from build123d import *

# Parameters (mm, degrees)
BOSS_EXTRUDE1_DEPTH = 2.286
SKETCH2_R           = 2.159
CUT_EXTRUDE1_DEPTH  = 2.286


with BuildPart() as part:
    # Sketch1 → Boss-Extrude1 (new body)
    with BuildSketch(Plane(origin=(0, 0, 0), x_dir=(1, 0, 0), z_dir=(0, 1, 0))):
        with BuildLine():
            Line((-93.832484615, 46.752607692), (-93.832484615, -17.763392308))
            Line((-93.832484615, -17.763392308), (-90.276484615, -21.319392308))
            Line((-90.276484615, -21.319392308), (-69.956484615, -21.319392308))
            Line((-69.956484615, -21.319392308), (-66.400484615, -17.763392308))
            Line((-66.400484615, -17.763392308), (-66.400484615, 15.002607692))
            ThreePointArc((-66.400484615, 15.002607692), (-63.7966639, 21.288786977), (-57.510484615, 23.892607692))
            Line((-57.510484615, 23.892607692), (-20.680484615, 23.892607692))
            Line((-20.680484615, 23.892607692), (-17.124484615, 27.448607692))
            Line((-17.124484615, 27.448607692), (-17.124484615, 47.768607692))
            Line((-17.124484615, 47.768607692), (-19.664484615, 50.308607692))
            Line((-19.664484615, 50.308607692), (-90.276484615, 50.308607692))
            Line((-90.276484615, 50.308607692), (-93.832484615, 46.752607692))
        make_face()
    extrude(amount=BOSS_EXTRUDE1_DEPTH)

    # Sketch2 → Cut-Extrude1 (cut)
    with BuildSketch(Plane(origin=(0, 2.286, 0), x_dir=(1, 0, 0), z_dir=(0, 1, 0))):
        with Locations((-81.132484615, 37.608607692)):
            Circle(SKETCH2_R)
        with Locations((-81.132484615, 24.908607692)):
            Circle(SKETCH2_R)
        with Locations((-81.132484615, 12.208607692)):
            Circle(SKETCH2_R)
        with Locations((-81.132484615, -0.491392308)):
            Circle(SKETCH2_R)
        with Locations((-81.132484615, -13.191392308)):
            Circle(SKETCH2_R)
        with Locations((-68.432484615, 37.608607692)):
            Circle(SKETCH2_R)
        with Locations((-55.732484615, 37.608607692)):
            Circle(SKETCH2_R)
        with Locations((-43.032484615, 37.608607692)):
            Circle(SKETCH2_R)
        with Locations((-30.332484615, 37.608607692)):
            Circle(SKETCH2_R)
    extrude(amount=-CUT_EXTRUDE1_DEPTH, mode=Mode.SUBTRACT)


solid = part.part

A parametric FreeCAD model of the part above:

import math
import FreeCAD as App
import Part
import Sketcher

V = App.Vector
Q = App.Units.Quantity

doc = App.newDocument("Part")
body = doc.addObject("PartDesign::Body", "Body")

sketch1 = body.newObject("Sketcher::SketchObject", "Sketch")
sketch1.AttachmentSupport = (doc.getObject("XZ_Plane"), [""])
sketch1.MapMode = "FlatFace"
sketch1.addGeometry(Part.LineSegment(V(-93.8, -46.8, 0), V(-93.8, 17.8, 0)), False)
sketch1.addGeometry(Part.LineSegment(V(-93.8, 17.8, 0), V(-90.3, 21.3, 0)), False)
sketch1.addGeometry(Part.LineSegment(V(-90.3, 21.3, 0), V(-70, 21.3, 0)), False)
sketch1.addGeometry(Part.LineSegment(V(-70, 21.3, 0), V(-66.4, 17.8, 0)), False)
sketch1.addGeometry(Part.LineSegment(V(-66.4, 17.8, 0), V(-66.4, -15, 0)), False)
sketch1.addGeometry(Part.ArcOfCircle(Part.Circle(V(-57.5, -15, 0), V(0, 0, 1), 8.9), math.radians(180), math.radians(270)), False)
sketch1.addGeometry(Part.LineSegment(V(-57.5, -23.9, 0), V(-20.7, -23.9, 0)), False)
sketch1.addGeometry(Part.LineSegment(V(-20.7, -23.9, 0), V(-17.1, -27.4, 0)), False)
sketch1.addGeometry(Part.LineSegment(V(-17.1, -27.4, 0), V(-17.1, -47.8, 0)), False)
sketch1.addGeometry(Part.LineSegment(V(-17.1, -47.8, 0), V(-19.7, -50.3, 0)), False)
sketch1.addGeometry(Part.LineSegment(V(-19.7, -50.3, 0), V(-90.3, -50.3, 0)), False)
sketch1.addGeometry(Part.LineSegment(V(-90.3, -50.3, 0), V(-93.8, -46.8, 0)), False)
sketch1.addConstraint(Sketcher.Constraint("Coincident", 0, 2, 1, 1))
sketch1.addConstraint(Sketcher.Constraint("Coincident", 1, 2, 2, 1))
sketch1.addConstraint(Sketcher.Constraint("Coincident", 2, 2, 3, 1))
sketch1.addConstraint(Sketcher.Constraint("Coincident", 3, 2, 4, 1))
sketch1.addConstraint(Sketcher.Constraint("Tangent", 4, 2, 5, 1))
sketch1.addConstraint(Sketcher.Constraint("Tangent", 5, 2, 6, 1))
sketch1.addConstraint(Sketcher.Constraint("Coincident", 6, 2, 7, 1))
sketch1.addConstraint(Sketcher.Constraint("Coincident", 7, 2, 8, 1))
sketch1.addConstraint(Sketcher.Constraint("Coincident", 8, 2, 9, 1))
sketch1.addConstraint(Sketcher.Constraint("Coincident", 9, 2, 10, 1))
sketch1.addConstraint(Sketcher.Constraint("Coincident", 10, 2, 11, 1))
sketch1.addConstraint(Sketcher.Constraint("Coincident", 11, 2, 0, 1))
sketch1.addConstraint(Sketcher.Constraint("Vertical", 0))
sketch1.addConstraint(Sketcher.Constraint("Horizontal", 2))
sketch1.addConstraint(Sketcher.Constraint("Vertical", 4))
sketch1.addConstraint(Sketcher.Constraint("Horizontal", 6))
sketch1.addConstraint(Sketcher.Constraint("Vertical", 8))
sketch1.addConstraint(Sketcher.Constraint("Horizontal", 10))
sketch1.addConstraint(Sketcher.Constraint("Perpendicular", 1, 3))
sketch1.addConstraint(Sketcher.Constraint("Parallel", 3, 7))
sketch1.addConstraint(Sketcher.Constraint("Perpendicular", 7, 9))
sketch1.addConstraint(Sketcher.Constraint("Perpendicular", 9, 11))
sketch1.addConstraint(Sketcher.Constraint("Horizontal", 0, 2, 3, 2))
sketch1.addConstraint(Sketcher.Constraint("Vertical", 1, 2, 10, 2))
sketch1.addConstraint(Sketcher.Constraint("Equal", 2, 8))
sketch1.addConstraint(Sketcher.Constraint("Equal", 1, 3))
sketch1.addConstraint(Sketcher.Constraint("Equal", 3, 7))
sketch1.addConstraint(Sketcher.Constraint("Radius", 5, Q("0.35 in")))
sketch1.addConstraint(Sketcher.Constraint("DistanceX", 2, 1, 2, 2, Q("0.8 in")))
sketch1.addConstraint(Sketcher.Constraint("DistanceX", 6, 1, 6, 2, Q("1.45 in")))
sketch1.addConstraint(Sketcher.Constraint("DistanceX", 10, 2, 10, 1, Q("2.78 in")))
sketch1.addConstraint(Sketcher.Constraint("DistanceY", 0, 1, 0, 2, Q("2.54 in")))
sketch1.addConstraint(Sketcher.Constraint("DistanceY", 4, 2, 4, 1, Q("1.29 in")))
sketch1.addConstraint(Sketcher.Constraint("DistanceX", 5, 3, -1, 1, 57.510485))
sketch1.addConstraint(Sketcher.Constraint("DistanceY", 5, 3, -1, 1, 15.002608))
pad1 = body.newObject("PartDesign::Pad", "Pad")
pad1.Profile = sketch1
pad1.Length = Q("0.09 in")
pad1.Reversed = True

sketch2 = body.newObject("Sketcher::SketchObject", "Sketch001")
sketch2.AttachmentSupport = (doc.getObject("XZ_Plane"), [""])
sketch2.MapMode = "FlatFace"
sketch2.AttachmentOffset = App.Placement(V(0, 0, -0.09 * 25.4), App.Rotation())
sketch2.addGeometry(Part.Circle(V(-81.1, -37.6, 0), V(0, 0, 1), 2.2), False)
sketch2.addGeometry(Part.Circle(V(-81.1, -24.9, 0), V(0, 0, 1), 2.2), False)
sketch2.addGeometry(Part.Circle(V(-81.1, -12.2, 0), V(0, 0, 1), 2.2), False)
sketch2.addGeometry(Part.Circle(V(-81.1, 0.5, 0), V(0, 0, 1), 2.2), False)
sketch2.addGeometry(Part.Circle(V(-81.1, 13.2, 0), V(0, 0, 1), 2.2), False)
sketch2.addGeometry(Part.Circle(V(-68.4, -37.6, 0), V(0, 0, 1), 2.2), False)
sketch2.addGeometry(Part.Circle(V(-55.7, -37.6, 0), V(0, 0, 1), 2.2), False)
sketch2.addGeometry(Part.Circle(V(-43, -37.6, 0), V(0, 0, 1), 2.2), False)
sketch2.addGeometry(Part.Circle(V(-30.3, -37.6, 0), V(0, 0, 1), 2.2), False)
sketch2.addConstraint(Sketcher.Constraint("Equal", 0, 1))
sketch2.addConstraint(Sketcher.Constraint("Equal", 1, 2))
sketch2.addConstraint(Sketcher.Constraint("Equal", 2, 3))
sketch2.addConstraint(Sketcher.Constraint("Equal", 3, 4))
sketch2.addConstraint(Sketcher.Constraint("Equal", 4, 5))
sketch2.addConstraint(Sketcher.Constraint("Equal", 5, 6))
sketch2.addConstraint(Sketcher.Constraint("Equal", 6, 7))
sketch2.addConstraint(Sketcher.Constraint("Equal", 7, 8))
sketch2.addConstraint(Sketcher.Constraint("Horizontal", 0, 3, 5, 3))
sketch2.addConstraint(Sketcher.Constraint("Horizontal", 5, 3, 6, 3))
sketch2.addConstraint(Sketcher.Constraint("Horizontal", 6, 3, 7, 3))
sketch2.addConstraint(Sketcher.Constraint("Horizontal", 7, 3, 8, 3))
sketch2.addConstraint(Sketcher.Constraint("Vertical", 0, 3, 1, 3))
sketch2.addConstraint(Sketcher.Constraint("Vertical", 1, 3, 2, 3))
sketch2.addConstraint(Sketcher.Constraint("Vertical", 2, 3, 3, 3))
sketch2.addConstraint(Sketcher.Constraint("Vertical", 3, 3, 4, 3))
sketch2.addConstraint(Sketcher.Constraint("Diameter", 0, Q("0.17 in")))
sketch2.addConstraint(Sketcher.Constraint("DistanceY", 0, 3, 2, 3, Q("1 in")))
sketch2.addConstraint(Sketcher.Constraint("DistanceY", 1, 3, 3, 3, Q("1 in")))
sketch2.addConstraint(Sketcher.Constraint("DistanceY", 2, 3, 4, 3, Q("1 in")))
sketch2.addConstraint(Sketcher.Constraint("DistanceX", 0, 3, 6, 3, Q("1 in")))
sketch2.addConstraint(Sketcher.Constraint("DistanceX", 5, 3, 7, 3, Q("1 in")))
sketch2.addConstraint(Sketcher.Constraint("DistanceX", 6, 3, 8, 3, Q("1 in")))
sketch2.addConstraint(Sketcher.Constraint("DistanceY", 0, 3, 1, 3, Q("0.5 in")))
sketch2.addConstraint(Sketcher.Constraint("DistanceX", 0, 3, 5, 3, Q("0.5 in")))
sketch2.addConstraint(Sketcher.Constraint("DistanceX", 0, 3, -1, 1, 81.132485))
sketch2.addConstraint(Sketcher.Constraint("DistanceY", 0, 3, -1, 1, 37.608608))
pocket1 = body.newObject("PartDesign::Pocket", "Pocket")
pocket1.Profile = sketch2
pocket1.Length = Q("0.09 in")
pocket1.Reversed = True

doc.recompute()
